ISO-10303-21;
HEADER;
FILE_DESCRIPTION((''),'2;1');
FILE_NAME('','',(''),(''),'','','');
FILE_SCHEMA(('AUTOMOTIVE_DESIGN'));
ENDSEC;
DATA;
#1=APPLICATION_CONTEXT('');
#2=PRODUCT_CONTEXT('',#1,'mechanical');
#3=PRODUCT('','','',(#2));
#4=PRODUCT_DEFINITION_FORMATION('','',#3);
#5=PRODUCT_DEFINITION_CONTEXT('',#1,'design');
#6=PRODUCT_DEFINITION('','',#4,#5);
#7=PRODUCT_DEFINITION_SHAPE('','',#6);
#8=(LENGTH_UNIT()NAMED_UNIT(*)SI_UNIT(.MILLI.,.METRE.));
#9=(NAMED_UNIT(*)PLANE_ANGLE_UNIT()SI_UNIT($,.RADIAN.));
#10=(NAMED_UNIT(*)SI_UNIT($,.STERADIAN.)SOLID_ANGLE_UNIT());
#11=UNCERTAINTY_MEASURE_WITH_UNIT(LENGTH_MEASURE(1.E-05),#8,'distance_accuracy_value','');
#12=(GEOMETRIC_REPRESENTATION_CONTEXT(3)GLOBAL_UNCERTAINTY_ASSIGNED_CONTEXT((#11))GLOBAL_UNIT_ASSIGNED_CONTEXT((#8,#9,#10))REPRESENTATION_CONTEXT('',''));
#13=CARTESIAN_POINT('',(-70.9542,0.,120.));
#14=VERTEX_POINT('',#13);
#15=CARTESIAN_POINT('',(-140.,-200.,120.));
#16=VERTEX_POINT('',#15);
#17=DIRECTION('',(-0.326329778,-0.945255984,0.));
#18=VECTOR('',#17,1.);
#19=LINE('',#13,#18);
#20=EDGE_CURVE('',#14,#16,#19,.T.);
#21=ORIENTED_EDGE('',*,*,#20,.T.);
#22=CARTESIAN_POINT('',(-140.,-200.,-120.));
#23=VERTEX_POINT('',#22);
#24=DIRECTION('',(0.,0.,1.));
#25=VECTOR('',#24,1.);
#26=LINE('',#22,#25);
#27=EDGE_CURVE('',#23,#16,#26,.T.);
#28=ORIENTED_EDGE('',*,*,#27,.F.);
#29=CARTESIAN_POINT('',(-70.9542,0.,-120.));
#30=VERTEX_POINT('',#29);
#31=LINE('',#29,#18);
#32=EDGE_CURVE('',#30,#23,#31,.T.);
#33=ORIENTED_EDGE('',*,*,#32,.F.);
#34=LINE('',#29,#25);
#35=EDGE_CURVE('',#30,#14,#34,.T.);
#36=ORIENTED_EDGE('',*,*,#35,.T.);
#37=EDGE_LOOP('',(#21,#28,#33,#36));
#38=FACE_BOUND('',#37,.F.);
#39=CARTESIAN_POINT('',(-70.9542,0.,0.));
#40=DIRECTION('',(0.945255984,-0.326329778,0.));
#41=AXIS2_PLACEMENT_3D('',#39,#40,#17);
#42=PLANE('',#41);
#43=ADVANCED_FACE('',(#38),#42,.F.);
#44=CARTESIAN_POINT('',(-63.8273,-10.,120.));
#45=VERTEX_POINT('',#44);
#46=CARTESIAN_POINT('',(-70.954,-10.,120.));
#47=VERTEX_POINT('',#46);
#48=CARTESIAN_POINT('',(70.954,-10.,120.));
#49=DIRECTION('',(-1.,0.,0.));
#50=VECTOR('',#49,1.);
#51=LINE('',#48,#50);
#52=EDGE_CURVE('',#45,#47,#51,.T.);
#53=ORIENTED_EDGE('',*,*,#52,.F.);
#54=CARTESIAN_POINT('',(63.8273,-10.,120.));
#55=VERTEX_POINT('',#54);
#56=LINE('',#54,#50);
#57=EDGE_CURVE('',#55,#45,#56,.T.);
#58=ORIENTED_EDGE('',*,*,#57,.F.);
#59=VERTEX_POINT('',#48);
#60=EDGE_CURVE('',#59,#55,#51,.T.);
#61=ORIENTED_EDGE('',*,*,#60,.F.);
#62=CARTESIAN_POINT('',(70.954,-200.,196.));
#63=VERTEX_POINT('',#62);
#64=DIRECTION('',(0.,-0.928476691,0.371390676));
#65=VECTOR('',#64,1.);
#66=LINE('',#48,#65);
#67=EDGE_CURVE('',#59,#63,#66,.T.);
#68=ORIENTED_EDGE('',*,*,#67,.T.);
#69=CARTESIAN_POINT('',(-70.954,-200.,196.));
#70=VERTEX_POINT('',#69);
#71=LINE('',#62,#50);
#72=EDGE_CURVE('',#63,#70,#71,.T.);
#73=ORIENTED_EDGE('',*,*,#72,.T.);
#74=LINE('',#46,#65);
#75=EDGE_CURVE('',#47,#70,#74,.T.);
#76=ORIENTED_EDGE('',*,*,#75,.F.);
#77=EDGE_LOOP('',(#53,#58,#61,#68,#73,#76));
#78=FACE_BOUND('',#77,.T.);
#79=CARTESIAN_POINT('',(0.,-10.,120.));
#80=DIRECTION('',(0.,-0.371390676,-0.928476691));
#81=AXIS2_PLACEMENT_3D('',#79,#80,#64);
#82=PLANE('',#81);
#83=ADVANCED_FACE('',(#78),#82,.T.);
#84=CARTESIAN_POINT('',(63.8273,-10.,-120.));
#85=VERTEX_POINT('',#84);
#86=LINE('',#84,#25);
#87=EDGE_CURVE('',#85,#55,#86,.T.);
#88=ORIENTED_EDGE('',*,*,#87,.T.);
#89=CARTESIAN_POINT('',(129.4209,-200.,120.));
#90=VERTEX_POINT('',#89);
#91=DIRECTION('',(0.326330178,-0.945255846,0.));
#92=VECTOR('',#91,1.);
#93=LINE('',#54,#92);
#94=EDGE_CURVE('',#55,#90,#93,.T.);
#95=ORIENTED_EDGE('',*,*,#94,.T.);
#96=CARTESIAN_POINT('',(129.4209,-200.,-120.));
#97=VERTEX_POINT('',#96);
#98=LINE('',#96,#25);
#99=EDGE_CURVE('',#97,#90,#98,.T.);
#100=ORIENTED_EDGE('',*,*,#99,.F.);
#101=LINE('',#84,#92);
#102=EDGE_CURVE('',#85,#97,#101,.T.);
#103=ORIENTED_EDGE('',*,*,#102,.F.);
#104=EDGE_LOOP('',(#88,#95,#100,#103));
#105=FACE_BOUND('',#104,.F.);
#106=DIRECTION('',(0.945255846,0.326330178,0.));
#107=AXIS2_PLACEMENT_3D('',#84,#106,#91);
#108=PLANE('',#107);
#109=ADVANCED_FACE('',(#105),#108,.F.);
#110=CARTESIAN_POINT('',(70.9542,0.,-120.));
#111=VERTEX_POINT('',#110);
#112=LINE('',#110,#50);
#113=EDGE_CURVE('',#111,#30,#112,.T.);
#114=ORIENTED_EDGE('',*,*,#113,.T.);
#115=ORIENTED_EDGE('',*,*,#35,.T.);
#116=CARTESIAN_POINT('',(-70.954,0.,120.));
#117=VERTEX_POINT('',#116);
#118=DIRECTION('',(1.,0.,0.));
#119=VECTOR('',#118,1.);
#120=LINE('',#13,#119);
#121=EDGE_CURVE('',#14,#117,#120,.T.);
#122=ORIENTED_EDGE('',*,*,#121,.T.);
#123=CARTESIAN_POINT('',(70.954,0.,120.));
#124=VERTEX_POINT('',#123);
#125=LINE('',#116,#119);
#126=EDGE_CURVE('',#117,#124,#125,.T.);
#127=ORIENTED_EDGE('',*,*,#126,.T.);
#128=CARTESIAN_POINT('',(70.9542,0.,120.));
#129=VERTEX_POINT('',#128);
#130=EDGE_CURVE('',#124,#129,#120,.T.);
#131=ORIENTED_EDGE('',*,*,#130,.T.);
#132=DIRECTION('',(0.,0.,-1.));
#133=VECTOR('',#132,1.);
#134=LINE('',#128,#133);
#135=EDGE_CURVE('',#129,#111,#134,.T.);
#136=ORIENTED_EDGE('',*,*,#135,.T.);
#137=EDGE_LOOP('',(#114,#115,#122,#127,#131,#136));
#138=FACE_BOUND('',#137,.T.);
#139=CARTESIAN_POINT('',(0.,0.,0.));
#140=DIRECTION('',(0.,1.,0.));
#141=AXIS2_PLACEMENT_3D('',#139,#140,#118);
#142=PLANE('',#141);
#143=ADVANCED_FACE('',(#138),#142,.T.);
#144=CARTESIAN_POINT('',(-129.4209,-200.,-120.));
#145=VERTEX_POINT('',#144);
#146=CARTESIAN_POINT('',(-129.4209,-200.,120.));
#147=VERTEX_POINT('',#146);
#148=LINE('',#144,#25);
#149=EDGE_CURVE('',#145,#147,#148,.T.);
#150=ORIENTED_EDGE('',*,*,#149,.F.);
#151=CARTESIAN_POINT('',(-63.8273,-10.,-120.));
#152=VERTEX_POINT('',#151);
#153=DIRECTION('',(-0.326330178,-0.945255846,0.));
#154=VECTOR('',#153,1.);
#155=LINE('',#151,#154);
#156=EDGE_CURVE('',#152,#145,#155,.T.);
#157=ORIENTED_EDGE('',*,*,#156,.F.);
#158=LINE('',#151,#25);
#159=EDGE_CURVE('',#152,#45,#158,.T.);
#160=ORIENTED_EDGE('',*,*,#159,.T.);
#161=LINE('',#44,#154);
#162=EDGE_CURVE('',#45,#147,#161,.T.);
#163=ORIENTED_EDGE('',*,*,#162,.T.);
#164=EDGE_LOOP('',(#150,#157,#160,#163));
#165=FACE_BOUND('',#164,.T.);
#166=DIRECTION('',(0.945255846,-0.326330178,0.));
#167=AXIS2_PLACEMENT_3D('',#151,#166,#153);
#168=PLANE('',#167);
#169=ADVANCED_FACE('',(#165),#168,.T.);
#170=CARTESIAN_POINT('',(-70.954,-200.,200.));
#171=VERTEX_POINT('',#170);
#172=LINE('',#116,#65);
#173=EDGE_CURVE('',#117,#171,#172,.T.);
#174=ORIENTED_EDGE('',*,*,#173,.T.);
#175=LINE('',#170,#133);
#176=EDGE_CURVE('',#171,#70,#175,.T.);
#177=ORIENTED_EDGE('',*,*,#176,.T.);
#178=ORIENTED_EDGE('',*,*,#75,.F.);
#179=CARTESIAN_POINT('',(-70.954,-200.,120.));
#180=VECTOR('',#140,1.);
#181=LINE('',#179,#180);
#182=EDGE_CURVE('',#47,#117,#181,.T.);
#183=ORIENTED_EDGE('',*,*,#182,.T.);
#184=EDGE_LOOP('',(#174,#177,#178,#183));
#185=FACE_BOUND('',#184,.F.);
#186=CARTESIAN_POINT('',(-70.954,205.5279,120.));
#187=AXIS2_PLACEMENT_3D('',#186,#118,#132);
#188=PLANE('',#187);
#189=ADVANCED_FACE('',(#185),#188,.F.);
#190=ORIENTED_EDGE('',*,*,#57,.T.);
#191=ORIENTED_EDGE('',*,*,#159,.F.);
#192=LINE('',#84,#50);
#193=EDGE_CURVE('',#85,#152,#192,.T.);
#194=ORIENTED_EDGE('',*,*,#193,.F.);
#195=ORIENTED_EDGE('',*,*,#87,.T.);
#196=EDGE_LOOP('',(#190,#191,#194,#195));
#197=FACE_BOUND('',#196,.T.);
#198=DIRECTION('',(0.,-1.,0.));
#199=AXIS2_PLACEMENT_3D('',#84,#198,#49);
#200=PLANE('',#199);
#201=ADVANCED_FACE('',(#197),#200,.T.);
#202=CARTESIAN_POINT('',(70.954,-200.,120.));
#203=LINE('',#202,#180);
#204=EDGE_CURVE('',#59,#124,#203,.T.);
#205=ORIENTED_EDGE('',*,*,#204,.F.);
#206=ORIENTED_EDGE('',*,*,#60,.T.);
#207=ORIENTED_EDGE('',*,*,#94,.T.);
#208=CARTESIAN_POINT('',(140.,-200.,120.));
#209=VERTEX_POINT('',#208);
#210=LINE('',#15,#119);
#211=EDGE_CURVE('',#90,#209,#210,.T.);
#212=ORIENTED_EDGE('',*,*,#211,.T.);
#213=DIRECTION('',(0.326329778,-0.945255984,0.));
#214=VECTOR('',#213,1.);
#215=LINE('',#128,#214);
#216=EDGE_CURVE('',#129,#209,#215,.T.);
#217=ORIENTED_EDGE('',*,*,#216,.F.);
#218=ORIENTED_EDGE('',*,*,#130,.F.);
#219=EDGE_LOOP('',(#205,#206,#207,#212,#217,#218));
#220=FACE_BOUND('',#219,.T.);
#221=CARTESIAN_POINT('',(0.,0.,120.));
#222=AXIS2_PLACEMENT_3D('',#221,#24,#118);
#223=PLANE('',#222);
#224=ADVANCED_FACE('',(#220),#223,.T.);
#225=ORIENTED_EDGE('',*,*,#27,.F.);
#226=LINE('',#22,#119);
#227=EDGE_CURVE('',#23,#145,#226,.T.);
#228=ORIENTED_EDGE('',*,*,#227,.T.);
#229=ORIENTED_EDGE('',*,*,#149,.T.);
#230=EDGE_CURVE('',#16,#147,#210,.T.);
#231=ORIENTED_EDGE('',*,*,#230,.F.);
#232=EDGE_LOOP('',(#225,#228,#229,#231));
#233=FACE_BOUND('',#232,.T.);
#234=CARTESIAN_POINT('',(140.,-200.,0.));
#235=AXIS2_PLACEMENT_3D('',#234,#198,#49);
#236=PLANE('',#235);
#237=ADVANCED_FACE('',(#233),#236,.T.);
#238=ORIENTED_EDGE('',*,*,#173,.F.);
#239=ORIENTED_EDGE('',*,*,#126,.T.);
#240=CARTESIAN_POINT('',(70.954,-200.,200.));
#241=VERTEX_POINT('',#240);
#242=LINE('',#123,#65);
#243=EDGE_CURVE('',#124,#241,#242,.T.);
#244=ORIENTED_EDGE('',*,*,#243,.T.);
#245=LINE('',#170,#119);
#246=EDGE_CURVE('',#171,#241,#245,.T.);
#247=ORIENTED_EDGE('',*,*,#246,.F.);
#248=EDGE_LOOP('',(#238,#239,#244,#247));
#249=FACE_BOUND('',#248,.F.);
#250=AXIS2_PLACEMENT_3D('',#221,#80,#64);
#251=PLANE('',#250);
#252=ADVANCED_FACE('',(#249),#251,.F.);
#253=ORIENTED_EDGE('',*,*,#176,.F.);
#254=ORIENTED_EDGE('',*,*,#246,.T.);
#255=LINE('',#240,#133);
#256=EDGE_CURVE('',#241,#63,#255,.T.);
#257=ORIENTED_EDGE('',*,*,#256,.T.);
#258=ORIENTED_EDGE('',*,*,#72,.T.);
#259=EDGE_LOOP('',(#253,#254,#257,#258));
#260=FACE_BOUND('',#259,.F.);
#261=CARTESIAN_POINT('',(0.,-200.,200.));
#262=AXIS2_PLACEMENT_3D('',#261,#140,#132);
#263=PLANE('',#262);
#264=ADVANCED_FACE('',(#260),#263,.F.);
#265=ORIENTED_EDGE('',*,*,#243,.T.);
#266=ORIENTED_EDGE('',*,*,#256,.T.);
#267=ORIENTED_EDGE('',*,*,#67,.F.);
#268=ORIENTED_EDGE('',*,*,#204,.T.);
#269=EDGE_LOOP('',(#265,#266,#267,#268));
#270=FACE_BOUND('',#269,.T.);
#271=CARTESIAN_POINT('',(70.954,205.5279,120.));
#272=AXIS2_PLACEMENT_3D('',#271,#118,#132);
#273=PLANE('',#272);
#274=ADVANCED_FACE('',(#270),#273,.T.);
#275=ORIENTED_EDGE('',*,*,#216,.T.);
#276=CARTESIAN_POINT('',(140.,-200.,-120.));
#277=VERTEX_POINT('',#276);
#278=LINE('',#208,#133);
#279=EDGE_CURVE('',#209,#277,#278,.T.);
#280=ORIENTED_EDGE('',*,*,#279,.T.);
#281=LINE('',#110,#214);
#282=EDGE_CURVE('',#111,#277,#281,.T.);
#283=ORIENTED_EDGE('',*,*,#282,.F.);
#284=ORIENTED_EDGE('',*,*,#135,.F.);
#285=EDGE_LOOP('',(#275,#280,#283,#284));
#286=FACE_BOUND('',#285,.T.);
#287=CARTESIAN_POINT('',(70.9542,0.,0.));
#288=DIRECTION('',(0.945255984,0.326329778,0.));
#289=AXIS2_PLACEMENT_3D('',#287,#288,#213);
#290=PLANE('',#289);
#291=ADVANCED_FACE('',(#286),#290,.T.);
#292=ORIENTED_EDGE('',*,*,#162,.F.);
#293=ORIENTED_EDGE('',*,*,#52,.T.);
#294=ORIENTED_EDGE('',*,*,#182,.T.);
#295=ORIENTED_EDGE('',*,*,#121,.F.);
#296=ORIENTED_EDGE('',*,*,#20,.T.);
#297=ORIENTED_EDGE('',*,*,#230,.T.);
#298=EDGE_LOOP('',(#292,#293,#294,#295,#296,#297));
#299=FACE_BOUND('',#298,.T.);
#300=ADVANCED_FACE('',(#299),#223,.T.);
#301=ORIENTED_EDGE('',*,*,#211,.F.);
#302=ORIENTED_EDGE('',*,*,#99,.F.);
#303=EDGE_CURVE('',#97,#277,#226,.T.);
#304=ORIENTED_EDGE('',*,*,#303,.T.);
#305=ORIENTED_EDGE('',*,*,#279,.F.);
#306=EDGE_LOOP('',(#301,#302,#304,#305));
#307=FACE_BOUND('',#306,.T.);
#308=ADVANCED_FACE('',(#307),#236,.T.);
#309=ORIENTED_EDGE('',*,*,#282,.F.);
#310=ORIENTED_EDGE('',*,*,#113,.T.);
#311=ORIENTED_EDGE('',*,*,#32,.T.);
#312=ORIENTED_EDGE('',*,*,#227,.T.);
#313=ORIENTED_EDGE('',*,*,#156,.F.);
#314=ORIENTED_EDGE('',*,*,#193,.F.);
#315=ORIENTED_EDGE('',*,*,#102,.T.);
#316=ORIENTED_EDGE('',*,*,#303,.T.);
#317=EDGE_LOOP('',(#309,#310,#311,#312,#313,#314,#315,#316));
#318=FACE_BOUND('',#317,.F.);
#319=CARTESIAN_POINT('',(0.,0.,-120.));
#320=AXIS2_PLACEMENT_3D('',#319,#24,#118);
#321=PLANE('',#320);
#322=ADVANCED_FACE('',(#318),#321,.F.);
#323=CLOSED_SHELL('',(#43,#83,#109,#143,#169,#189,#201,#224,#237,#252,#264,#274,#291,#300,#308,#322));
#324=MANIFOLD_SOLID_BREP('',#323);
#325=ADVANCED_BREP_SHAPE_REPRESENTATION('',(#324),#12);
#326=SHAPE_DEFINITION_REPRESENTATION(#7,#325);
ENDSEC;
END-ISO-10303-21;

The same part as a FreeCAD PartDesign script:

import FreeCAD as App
import Part
import Sketcher
from FreeCAD import Vector
Q = App.Units.Quantity

doc = App.newDocument("Part")
body = doc.addObject("PartDesign::Body", "Body")

# Sketch on XY plane
sketch1 = body.newObject("Sketcher::SketchObject", "Sketch")
sketch1.AttachmentSupport = (doc.getObject("XY_Plane"), [""])
sketch1.MapMode = "FlatFace"
sketch1.addGeometry(Part.LineSegment(Vector(71, 0, 0), Vector(-71, 0, 0)), False)
sketch1.addGeometry(Part.LineSegment(Vector(-71, 0, 0), Vector(-140, -200, 0)), False)
sketch1.addGeometry(Part.LineSegment(Vector(-140, -200, 0), Vector(140, -200, 0)), False)
sketch1.addGeometry(Part.LineSegment(Vector(140, -200, 0), Vector(71, 0, 0)), False)
sketch1.addConstraint(Sketcher.Constraint("Coincident", 0, 2, 1, 1))
sketch1.addConstraint(Sketcher.Constraint("Coincident", 1, 2, 2, 1))
sketch1.addConstraint(Sketcher.Constraint("Coincident", 2, 2, 3, 1))
sketch1.addConstraint(Sketcher.Constraint("Coincident", 3, 2, 0, 1))
sketch1.addConstraint(Sketcher.Constraint("Horizontal", 0))
sketch1.addConstraint(Sketcher.Constraint("Horizontal", 2))
sketch1.addConstraint(Sketcher.Constraint("Symmetric", 0, 2, 3, 2, -1, 1))
sketch1.addConstraint(Sketcher.Constraint("Equal", 1, 3))
sketch1.addConstraint(Sketcher.Constraint("DistanceX", 2, 1, 2, 2, Q("280 mm")))
sketch1.addConstraint(Sketcher.Constraint("DistanceY", 1, 2, -1, 1, Q("200 mm")))
sketch1.addConstraint(Sketcher.Constraint("Distance", 1, Q("211.583 mm")))
pad1 = body.newObject("PartDesign::Pad", "Pad")
pad1.Profile = sketch1
pad1.Length = 240
pad1.Midplane = True

# Sketch on XY plane
sketch2 = body.newObject("Sketcher::SketchObject", "Sketch001")
sketch2.AttachmentSupport = (doc.getObject("XY_Plane"), [""])
sketch2.MapMode = "FlatFace"
sketch2.AttachmentOffset = App.Placement(Vector(0, 0, -120), App.Rotation())
sketch2.addGeometry(Part.LineSegment(Vector(-64, -10, 0), Vector(64, -10, 0)), False)
sketch2.addGeometry(Part.LineSegment(Vector(64, -10, 0), Vector(129, -200, 0)), False)
sketch2.addGeometry(Part.LineSegment(Vector(129, -200, 0), Vector(-129, -200, 0)), False)
sketch2.addGeometry(Part.LineSegment(Vector(-129, -200, 0), Vector(-64, -10, 0)), False)
sketch2.addConstraint(Sketcher.Constraint("Coincident", 0, 2, 1, 1))
sketch2.addConstraint(Sketcher.Constraint("Coincident", 1, 2, 2, 1))
sketch2.addConstraint(Sketcher.Constraint("Coincident", 2, 2, 3, 1))
sketch2.addConstraint(Sketcher.Constraint("Coincident", 3, 2, 0, 1))
sketch2.addConstraint(Sketcher.Constraint("Horizontal", 0))
sketch2.addConstraint(Sketcher.Constraint("Horizontal", 2))
sketch2.addConstraint(Sketcher.Constraint("Equal", 1, 3))
sketch2.addConstraint(Sketcher.Constraint("DistanceY", 0, 2, -1, 1, Q("10 mm")))
sketch2.addConstraint(Sketcher.Constraint("DistanceY", 1, 2, -1, 1, Q("200 mm")))
sketch2.addConstraint(Sketcher.Constraint("DistanceX", 0, 1, 0, 2, Q("127.6546 mm")))
sketch2.addConstraint(Sketcher.Constraint("DistanceX", 2, 2, 2, 1, Q("258.8418 mm")))
sketch2.addConstraint(Sketcher.Constraint("DistanceX", -1, 1, 1, 2, Q("129.421 mm")))
pocket1 = body.newObject("PartDesign::Pocket", "Pocket")
pocket1.Profile = sketch2
pocket1.Length = 240
pocket1.Reversed = True

# Sketch on YZ plane
sketch3 = body.newObject("Sketcher::SketchObject", "Sketch002")
sketch3.AttachmentSupport = (doc.getObject("YZ_Plane"), [""])
sketch3.MapMode = "FlatFace"
sketch3.addGeometry(Part.LineSegment(Vector(-10, 120, 0), Vector(0, 120, 0)), False)
sketch3.addGeometry(Part.LineSegment(Vector(0, 120, 0), Vector(-200, 200, 0)), False)
sketch3.addGeometry(Part.LineSegment(Vector(-200, 200, 0), Vector(-200, 196, 0)), False)
sketch3.addGeometry(Part.LineSegment(Vector(-200, 196, 0), Vector(-10, 120, 0)), False)
sketch3.addConstraint(Sketcher.Constraint("Coincident", 0, 2, 1, 1))
sketch3.addConstraint(Sketcher.Constraint("Coincident", 1, 2, 2, 1))
sketch3.addConstraint(Sketcher.Constraint("Coincident", 2, 2, 3, 1))
sketch3.addConstraint(Sketcher.Constraint("Coincident", 3, 2, 0, 1))
sketch3.addConstraint(Sketcher.Constraint("Horizontal", 0))
sketch3.addConstraint(Sketcher.Constraint("Vertical", 2))
sketch3.addConstraint(Sketcher.Constraint("PointOnObject", 0, 2, -2))
sketch3.addConstraint(Sketcher.Constraint("Parallel", 1, 3))
sketch3.addConstraint(Sketcher.Constraint("DistanceX", 1, 2, -1, 1, Q("200 mm")))
sketch3.addConstraint(Sketcher.Constraint("DistanceY", -1, 1, 1, 2, Q("200 mm")))
sketch3.addConstraint(Sketcher.Constraint("DistanceY", 0, 2, 1, 2, Q("80 mm")))
sketch3.addConstraint(Sketcher.Constraint("DistanceX", 0, 1, 0, 2, Q("10 mm")))
pad2 = body.newObject("PartDesign::Pad", "Pad001")
pad2.Profile = sketch3
pad2.Length = 141.908
pad2.Midplane = True

doc.recompute()
